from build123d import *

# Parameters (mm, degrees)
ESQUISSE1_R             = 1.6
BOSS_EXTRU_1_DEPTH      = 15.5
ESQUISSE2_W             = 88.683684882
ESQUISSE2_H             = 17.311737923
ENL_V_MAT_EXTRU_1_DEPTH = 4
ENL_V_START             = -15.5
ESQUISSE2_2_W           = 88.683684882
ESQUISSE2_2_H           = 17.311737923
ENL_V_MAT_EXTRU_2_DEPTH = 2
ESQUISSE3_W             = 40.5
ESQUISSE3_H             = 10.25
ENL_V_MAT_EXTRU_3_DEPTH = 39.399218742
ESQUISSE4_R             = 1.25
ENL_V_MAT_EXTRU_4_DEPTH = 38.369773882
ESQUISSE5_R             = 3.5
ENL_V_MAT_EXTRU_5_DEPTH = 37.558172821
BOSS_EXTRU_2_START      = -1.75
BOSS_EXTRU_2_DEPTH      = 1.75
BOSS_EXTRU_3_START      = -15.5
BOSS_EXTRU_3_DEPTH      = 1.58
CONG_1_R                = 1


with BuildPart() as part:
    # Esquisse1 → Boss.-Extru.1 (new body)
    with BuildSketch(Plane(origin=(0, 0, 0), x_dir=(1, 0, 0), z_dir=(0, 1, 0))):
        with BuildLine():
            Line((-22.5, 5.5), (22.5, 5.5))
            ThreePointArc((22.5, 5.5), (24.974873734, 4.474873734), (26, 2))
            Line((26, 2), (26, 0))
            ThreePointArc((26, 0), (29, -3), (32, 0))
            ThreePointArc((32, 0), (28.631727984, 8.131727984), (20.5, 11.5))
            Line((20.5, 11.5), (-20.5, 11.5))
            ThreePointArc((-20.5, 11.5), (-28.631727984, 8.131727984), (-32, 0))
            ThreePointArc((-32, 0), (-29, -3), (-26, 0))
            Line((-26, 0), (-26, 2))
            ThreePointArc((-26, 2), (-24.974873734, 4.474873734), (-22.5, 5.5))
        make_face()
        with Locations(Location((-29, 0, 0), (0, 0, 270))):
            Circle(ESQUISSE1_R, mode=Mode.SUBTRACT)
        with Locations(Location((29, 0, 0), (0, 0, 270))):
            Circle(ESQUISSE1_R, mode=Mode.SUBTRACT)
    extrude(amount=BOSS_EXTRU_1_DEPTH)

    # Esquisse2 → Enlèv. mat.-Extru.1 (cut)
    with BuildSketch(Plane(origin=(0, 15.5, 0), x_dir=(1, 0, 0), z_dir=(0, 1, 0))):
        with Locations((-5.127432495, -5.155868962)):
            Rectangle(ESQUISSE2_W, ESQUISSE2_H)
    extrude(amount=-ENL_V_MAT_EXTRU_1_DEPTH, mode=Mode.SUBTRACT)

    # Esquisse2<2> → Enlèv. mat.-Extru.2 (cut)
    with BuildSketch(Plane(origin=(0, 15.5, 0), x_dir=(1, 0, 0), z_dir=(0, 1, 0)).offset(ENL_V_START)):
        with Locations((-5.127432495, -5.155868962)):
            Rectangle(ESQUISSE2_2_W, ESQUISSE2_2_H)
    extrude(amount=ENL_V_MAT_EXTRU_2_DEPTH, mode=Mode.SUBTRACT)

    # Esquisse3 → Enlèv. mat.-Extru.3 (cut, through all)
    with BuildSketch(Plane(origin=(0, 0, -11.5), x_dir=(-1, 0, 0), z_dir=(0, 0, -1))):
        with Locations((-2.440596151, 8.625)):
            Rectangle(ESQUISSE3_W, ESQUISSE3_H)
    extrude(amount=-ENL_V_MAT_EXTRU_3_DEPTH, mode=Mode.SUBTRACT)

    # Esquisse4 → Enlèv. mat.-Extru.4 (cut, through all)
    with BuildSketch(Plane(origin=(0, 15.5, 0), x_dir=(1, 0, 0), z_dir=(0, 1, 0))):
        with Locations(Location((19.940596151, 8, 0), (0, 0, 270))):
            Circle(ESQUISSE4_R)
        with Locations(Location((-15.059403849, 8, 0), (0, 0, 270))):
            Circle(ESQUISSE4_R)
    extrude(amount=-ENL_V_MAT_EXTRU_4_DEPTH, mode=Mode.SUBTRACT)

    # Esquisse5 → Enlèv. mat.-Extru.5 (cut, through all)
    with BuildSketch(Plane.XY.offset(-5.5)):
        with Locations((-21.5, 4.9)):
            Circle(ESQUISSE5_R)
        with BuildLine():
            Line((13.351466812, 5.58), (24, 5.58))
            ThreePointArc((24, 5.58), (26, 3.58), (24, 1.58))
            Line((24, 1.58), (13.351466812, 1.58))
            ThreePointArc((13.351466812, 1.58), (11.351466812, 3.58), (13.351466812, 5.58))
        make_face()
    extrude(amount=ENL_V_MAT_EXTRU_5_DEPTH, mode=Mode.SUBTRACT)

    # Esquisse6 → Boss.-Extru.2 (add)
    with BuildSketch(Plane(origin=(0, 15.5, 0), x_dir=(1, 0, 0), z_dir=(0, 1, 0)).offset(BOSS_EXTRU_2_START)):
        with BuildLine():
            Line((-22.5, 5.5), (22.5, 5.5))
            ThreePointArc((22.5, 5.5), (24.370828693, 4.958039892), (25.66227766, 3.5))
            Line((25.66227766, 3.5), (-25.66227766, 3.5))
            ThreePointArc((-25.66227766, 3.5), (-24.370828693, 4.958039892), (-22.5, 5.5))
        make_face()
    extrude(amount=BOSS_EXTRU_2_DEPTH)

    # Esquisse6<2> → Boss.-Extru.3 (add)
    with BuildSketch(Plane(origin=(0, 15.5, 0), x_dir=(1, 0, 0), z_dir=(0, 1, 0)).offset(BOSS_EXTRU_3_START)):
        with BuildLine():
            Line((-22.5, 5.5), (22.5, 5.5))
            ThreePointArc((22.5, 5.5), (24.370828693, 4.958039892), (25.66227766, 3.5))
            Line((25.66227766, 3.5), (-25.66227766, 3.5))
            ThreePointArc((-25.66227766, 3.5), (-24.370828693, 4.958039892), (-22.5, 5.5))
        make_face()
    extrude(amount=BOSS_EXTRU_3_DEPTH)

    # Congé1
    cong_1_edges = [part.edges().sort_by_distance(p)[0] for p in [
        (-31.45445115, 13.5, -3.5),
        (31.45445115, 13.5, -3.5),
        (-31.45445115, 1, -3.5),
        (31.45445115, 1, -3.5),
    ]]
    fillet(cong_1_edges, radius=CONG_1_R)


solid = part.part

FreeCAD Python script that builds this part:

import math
import FreeCAD as App
import Part
import Sketcher

V = App.Vector
Q = App.Units.Quantity


def edges_at(feature, points):
    """Names of the edges that pass closest to the given points."""
    edges = feature.Shape.Edges
    near = lambda p: min(range(len(edges)), key=lambda i: edges[i].distToShape(Part.Vertex(*p))[0])
    return sorted({f"Edge{near(p) + 1}" for p in points})

doc = App.newDocument("Part")
body = doc.addObject("PartDesign::Body", "Body")

sketch1 = doc.addObject("Sketcher::SketchObject", "Sketch")
body.addObject(sketch1)
sketch1.AttachmentSupport = (doc.XZ_Plane, [""])
sketch1.MapMode = "FlatFace"
sketch1.addGeometry(Part.LineSegment(V(-22.5, -5.5, 0), V(22.5, -5.5, 0)), False)
sketch1.addGeometry(Part.ArcOfCircle(Part.Circle(V(22.5, -2, 0), V(0, 0, 1), 3.5), math.radians(-90), math.radians(0)), False)
sketch1.addGeometry(Part.LineSegment(V(26, -2, 0), V(26, 0, 0)), False)
sketch1.addGeometry(Part.ArcOfCircle(Part.Circle(V(29, 0, 0), V(0, 0, 1), 3), math.radians(0), math.radians(180)), False)
sketch1.addGeometry(Part.ArcOfCircle(Part.Circle(V(20.5, 0, 0), V(0, 0, 1), 11.5), math.radians(-90), math.radians(0)), False)
sketch1.addGeometry(Part.LineSegment(V(20.5, -11.5, 0), V(-20.5, -11.5, 0)), False)
sketch1.addGeometry(Part.ArcOfCircle(Part.Circle(V(-20.5, 0, 0), V(0, 0, 1), 11.5), math.radians(180), math.radians(270)), False)
sketch1.addGeometry(Part.ArcOfCircle(Part.Circle(V(-29, 0, 0), V(0, 0, 1), 3), math.radians(0), math.radians(180)), False)
sketch1.addGeometry(Part.LineSegment(V(-26, 0, 0), V(-26, -2, 0)), False)
sketch1.addGeometry(Part.ArcOfCircle(Part.Circle(V(-22.5, -2, 0), V(0, 0, 1), 3.5), math.radians(-180), math.radians(-90)), False)
sketch1.addGeometry(Part.Circle(V(-29, 0, 0), V(0, 0, 1), 1.6), False)
sketch1.addGeometry(Part.Circle(V(29, 0, 0), V(0, 0, 1), 1.6), False)
sketch1.addConstraint(Sketcher.Constraint("Tangent", 0, 2, 1, 1))
sketch1.addConstraint(Sketcher.Constraint("Tangent", 1, 2, 2, 1))
sketch1.addConstraint(Sketcher.Constraint("Tangent", 2, 2, 3, 2))
sketch1.addConstraint(Sketcher.Constraint("Tangent", 3, 1, 4, 2))
sketch1.addConstraint(Sketcher.Constraint("Tangent", 4, 1, 5, 1))
sketch1.addConstraint(Sketcher.Constraint("Tangent", 5, 2, 6, 2))
sketch1.addConstraint(Sketcher.Constraint("Tangent", 6, 1, 7, 2))
sketch1.addConstraint(Sketcher.Constraint("Tangent", 7, 1, 8, 1))
sketch1.addConstraint(Sketcher.Constraint("Tangent", 8, 2, 9, 1))
sketch1.addConstraint(Sketcher.Constraint("Tangent", 9, 2, 0, 1))
sketch1.addConstraint(Sketcher.Constraint("Horizontal", 0))
sketch1.addConstraint(Sketcher.Constraint("Vertical", 2))
sketch1.addConstraint(Sketcher.Constraint("Horizontal", 5))
sketch1.addConstraint(Sketcher.Constraint("Vertical", 8))
sketch1.addConstraint(Sketcher.Constraint("Coincident", 10, 3, 7, 3))
sketch1.addConstraint(Sketcher.Constraint("Coincident", 11, 3, 3, 3))
sketch1.addConstraint(Sketcher.Constraint("Equal", 4, 6))
sketch1.addConstraint(Sketcher.Constraint("Equal", 3, 7))
sketch1.addConstraint(Sketcher.Constraint("Equal", 1, 9))
sketch1.addConstraint(Sketcher.Constraint("Equal", 10, 11))
sketch1.addConstraint(Sketcher.Constraint("Symmetric", 4, 3, 6, 3, -1, 1))
sketch1.addConstraint(Sketcher.Constraint("PointOnObject", 3, 3, -1))
sketch1.addConstraint(Sketcher.Constraint("PointOnObject", 7, 3, -1))
sketch1.addConstraint(Sketcher.Constraint("Radius", 3, Q("3 mm")))
sketch1.addConstraint(Sketcher.Constraint("Diameter", 10, Q("3.2 mm")))
sketch1.addConstraint(Sketcher.Constraint("Radius", 1, Q("3.5 mm")))
sketch1.addConstraint(Sketcher.Constraint("Radius", 4, Q("11.5 mm")))
sketch1.addConstraint(Sketcher.Constraint("DistanceX", 0, 1, 0, 2, Q("45 mm")))
sketch1.addConstraint(Sketcher.Constraint("DistanceY", 2, 1, 2, 2, Q("2 mm")))
pad1 = doc.addObject("PartDesign::Pad", "Pad")
body.addObject(pad1)
pad1.Profile = sketch1
pad1.Length = 15.5
pad1.Reversed = True

sketch2 = doc.addObject("Sketcher::SketchObject", "Sketch001")
body.addObject(sketch2)
sketch2.AttachmentSupport = (doc.XZ_Plane, [""])
sketch2.MapMode = "FlatFace"
sketch2.AttachmentOffset = App.Placement(V(0, 0, -15.5), App.Rotation())
sketch2.addGeometry(Part.LineSegment(V(-49, -3, 0), V(-49, 14, 0)), False)
sketch2.addGeometry(Part.LineSegment(V(-49, 14, 0), V(39, 14, 0)), False)
sketch2.addGeometry(Part.LineSegment(V(39, 14, 0), V(39, -3, 0)), False)
sketch2.addGeometry(Part.LineSegment(V(39, -3, 0), V(-49, -3, 0)), False)
sketch2.addConstraint(Sketcher.Constraint("Coincident", 0, 2, 1, 1))
sketch2.addConstraint(Sketcher.Constraint("Coincident", 1, 2, 2, 1))
sketch2.addConstraint(Sketcher.Constraint("Coincident", 2, 2, 3, 1))
sketch2.addConstraint(Sketcher.Constraint("Coincident", 3, 2, 0, 1))
sketch2.addConstraint(Sketcher.Constraint("Vertical", 0))
sketch2.addConstraint(Sketcher.Constraint("Horizontal", 1))
sketch2.addConstraint(Sketcher.Constraint("Vertical", 2))
sketch2.addConstraint(Sketcher.Constraint("Horizontal", 3))
sketch2.addConstraint(Sketcher.Constraint("DistanceY", 2, 2, -1, 1, Q("3.5 mm")))
sketch2.addConstraint(Sketcher.Constraint("DistanceX", 1, 1, 1, 2, Q("88.683685 mm")))
sketch2.addConstraint(Sketcher.Constraint("DistanceY", 0, 1, 0, 2, Q("17.311738 mm")))
sketch2.addConstraint(Sketcher.Constraint("DistanceX", -1, 1, 1, 2, Q("39.21441 mm")))
pocket1 = doc.addObject("PartDesign::Pocket", "Pocket")
body.addObject(pocket1)
pocket1.Profile = sketch2
pocket1.Length = 4
pocket1.Reversed = True

sketch3 = doc.addObject("Sketcher::SketchObject", "Sketch002")
body.addObject(sketch3)
sketch3.AttachmentSupport = (doc.XZ_Plane, [""])
sketch3.MapMode = "FlatFace"
sketch3.addGeometry(Part.LineSegment(V(-49, -3, 0), V(-49, 14, 0)), False)
sketch3.addGeometry(Part.LineSegment(V(-49, 14, 0), V(39, 14, 0)), False)
sketch3.addGeometry(Part.LineSegment(V(39, 14, 0), V(39, -3, 0)), False)
sketch3.addGeometry(Part.LineSegment(V(39, -3, 0), V(-49, -3, 0)), False)
sketch3.addConstraint(Sketcher.Constraint("Coincident", 0, 2, 1, 1))
sketch3.addConstraint(Sketcher.Constraint("Coincident", 1, 2, 2, 1))
sketch3.addConstraint(Sketcher.Constraint("Coincident", 2, 2, 3, 1))
sketch3.addConstraint(Sketcher.Constraint("Coincident", 3, 2, 0, 1))
sketch3.addConstraint(Sketcher.Constraint("Vertical", 0))
sketch3.addConstraint(Sketcher.Constraint("Horizontal", 1))
sketch3.addConstraint(Sketcher.Constraint("Vertical", 2))
sketch3.addConstraint(Sketcher.Constraint("Horizontal", 3))
sketch3.addConstraint(Sketcher.Constraint("DistanceY", 2, 2, -1, 1, Q("3.5 mm")))
sketch3.addConstraint(Sketcher.Constraint("DistanceX", 1, 1, 1, 2, Q("88.683685 mm")))
sketch3.addConstraint(Sketcher.Constraint("DistanceY", 0, 1, 0, 2, Q("17.311738 mm")))
sketch3.addConstraint(Sketcher.Constraint("DistanceX", -1, 1, 1, 2, Q("39.21441 mm")))
pocket2 = doc.addObject("PartDesign::Pocket", "Pocket001")
body.addObject(pocket2)
pocket2.Profile = sketch3
pocket2.Length = 2

sketch4 = doc.addObject("Sketcher::SketchObject", "Sketch003")
body.addObject(sketch4)
sketch4.AttachmentSupport = (doc.XY_Plane, [""])
sketch4.MapMode = "FlatFace"
sketch4.AttachmentOffset = App.Placement(V(0, 0, -11.5), App.Rotation())
sketch4.addGeometry(Part.LineSegment(V(23, 14, 0), V(23, 4, 0)), False)
sketch4.addGeometry(Part.LineSegment(V(23, 4, 0), V(-18, 4, 0)), False)
sketch4.addGeometry(Part.LineSegment(V(-18, 4, 0), V(-18, 14, 0)), False)
sketch4.addGeometry(Part.LineSegment(V(-18, 14, 0), V(23, 14, 0)), False)
sketch4.addConstraint(Sketcher.Constraint("Coincident", 0, 2, 1, 1))
sketch4.addConstraint(Sketcher.Constraint("Coincident", 1, 2, 2, 1))
sketch4.addConstraint(Sketcher.Constraint("Coincident", 2, 2, 3, 1))
sketch4.addConstraint(Sketcher.Constraint("Coincident", 3, 2, 0, 1))
sketch4.addConstraint(Sketcher.Constraint("Vertical", 0))
sketch4.addConstraint(Sketcher.Constraint("Horizontal", 1))
sketch4.addConstraint(Sketcher.Constraint("Vertical", 2))
sketch4.addConstraint(Sketcher.Constraint("Horizontal", 3))
sketch4.addConstraint(Sketcher.Constraint("DistanceX", 1, 2, 1, 1, Q("40.5 mm")))
sketch4.addConstraint(Sketcher.Constraint("DistanceY", 0, 2, 0, 1, Q("10.25 mm")))
sketch4.addConstraint(Sketcher.Constraint("DistanceY", -1, 1, 0, 2, Q("3.5 mm")))
sketch4.addConstraint(Sketcher.Constraint("DistanceX", -1, 1, 0, 2, Q("22.690596 mm")))
pocket3 = doc.addObject("PartDesign::Pocket", "Pocket002")
body.addObject(pocket3)
pocket3.Profile = sketch4
pocket3.Type = "ThroughAll"
pocket3.Reversed = True

sketch5 = doc.addObject("Sketcher::SketchObject", "Sketch004")
body.addObject(sketch5)
sketch5.AttachmentSupport = (doc.XZ_Plane, [""])
sketch5.MapMode = "FlatFace"
sketch5.AttachmentOffset = App.Placement(V(0, 0, -15.5), App.Rotation())
sketch5.addGeometry(Part.Circle(V(19.9, -8, 0), V(0, 0, 1), 1.2), False)
sketch5.addGeometry(Part.Circle(V(-15.1, -8, 0), V(0, 0, 1), 1.2), False)
sketch5.addConstraint(Sketcher.Constraint("Equal", 0, 1))
sketch5.addConstraint(Sketcher.Constraint("Horizontal", 0, 3, 1, 3))
sketch5.addConstraint(Sketcher.Constraint("Diameter", 0, Q("2.5 mm")))
sketch5.addConstraint(Sketcher.Constraint("DistanceY", 0, 3, -1, 1, Q("8 mm")))
sketch5.addConstraint(Sketcher.Constraint("DistanceX", 1, 3, 0, 3, Q("35 mm")))
sketch5.addConstraint(Sketcher.Constraint("DistanceX", -1, 1, 0, 3, Q("19.940596 mm")))
pocket4 = doc.addObject("PartDesign::Pocket", "Pocket003")
body.addObject(pocket4)
pocket4.Profile = sketch5
pocket4.Type = "ThroughAll"
pocket4.Reversed = True

sketch6 = doc.addObject("Sketcher::SketchObject", "Sketch005")
body.addObject(sketch6)
sketch6.AttachmentSupport = (doc.XY_Plane, [""])
sketch6.MapMode = "FlatFace"
sketch6.AttachmentOffset = App.Placement(V(0, 0, -5.5), App.Rotation())
sketch6.addGeometry(Part.Circle(V(-21.5, 4.9, 0), V(0, 0, 1), 3.5), False)
sketch6.addGeometry(Part.LineSegment(V(24, 5.6, 0), V(13.4, 5.6, 0)), False)
sketch6.addGeometry(Part.ArcOfCircle(Part.Circle(V(13.4, 3.6, 0), V(0, 0, 1), 2), math.radians(90), math.radians(270)), False)
sketch6.addGeometry(Part.LineSegment(V(13.4, 1.6, 0), V(24, 1.6, 0)), False)
sketch6.addGeometry(Part.ArcOfCircle(Part.Circle(V(24, 3.6, 0), V(0, 0, 1), 2), math.radians(-90), math.radians(90)), False)
sketch6.addConstraint(Sketcher.Constraint("Tangent", 1, 2, 2, 1))
sketch6.addConstraint(Sketcher.Constraint("Tangent", 2, 2, 3, 1))
sketch6.addConstraint(Sketcher.Constraint("Tangent", 3, 2, 4, 1))
sketch6.addConstraint(Sketcher.Constraint("Tangent", 4, 2, 1, 1))
sketch6.addConstraint(Sketcher.Constraint("Horizontal", 1))
sketch6.addConstraint(Sketcher.Constraint("Horizontal", 3))
sketch6.addConstraint(Sketcher.Constraint("Diameter", 0, Q("7 mm")))
sketch6.addConstraint(Sketcher.Constraint("Radius", 2, Q("2 mm")))
sketch6.addConstraint(Sketcher.Constraint("DistanceX", -1, 1, 4, 3, Q("24 mm")))
sketch6.addConstraint(Sketcher.Constraint("DistanceX", 0, 3, -1, 1, Q("21.5 mm")))
sketch6.addConstraint(Sketcher.Constraint("DistanceY", -1, 1, 0, 3, Q("4.9 mm")))
sketch6.addConstraint(Sketcher.Constraint("DistanceY", -1, 1, 2, 3, Q("3.58 mm")))
sketch6.addConstraint(Sketcher.Constraint("DistanceX", 1, 2, 1, 1, Q("10.648533 mm")))
pocket5 = doc.addObject("PartDesign::Pocket", "Pocket004")
body.addObject(pocket5)
pocket5.Profile = sketch6
pocket5.Type = "ThroughAll"
pocket5.Reversed = True

sketch7 = doc.addObject("Sketcher::SketchObject", "Sketch006")
body.addObject(sketch7)
sketch7.AttachmentSupport = (doc.XZ_Plane, [""])
sketch7.MapMode = "FlatFace"
sketch7.AttachmentOffset = App.Placement(V(0, 0, -13.75), App.Rotation())
sketch7.addGeometry(Part.LineSegment(V(22.5, -5.5, 0), V(-22.5, -5.5, 0)), False)
sketch7.addGeometry(Part.ArcOfCircle(Part.Circle(V(-22.5, -2, 0), V(0, 0, 1), 3.5), math.radians(-155), math.radians(-90)), False)
sketch7.addGeometry(Part.LineSegment(V(-25.7, -3.5, 0), V(25.7, -3.5, 0)), False)
sketch7.addGeometry(Part.ArcOfCircle(Part.Circle(V(22.5, -2, 0), V(0, 0, 1), 3.5), math.radians(-90), math.radians(-25)), False)
sketch7.addConstraint(Sketcher.Constraint("Tangent", 0, 2, 1, 2))
sketch7.addConstraint(Sketcher.Constraint("Coincident", 1, 1, 2, 1))
sketch7.addConstraint(Sketcher.Constraint("Coincident", 2, 2, 3, 2))
sketch7.addConstraint(Sketcher.Constraint("Tangent", 3, 1, 0, 1))
sketch7.addConstraint(Sketcher.Constraint("Horizontal", 0))
sketch7.addConstraint(Sketcher.Constraint("Horizontal", 2))
sketch7.addConstraint(Sketcher.Constraint("Equal", 1, 3))
sketch7.addConstraint(Sketcher.Constraint("Radius", 1, Q("3.5 mm")))
sketch7.addConstraint(Sketcher.Constraint("DistanceX", 0, 2, 0, 1, Q("45 mm")))
sketch7.addConstraint(Sketcher.Constraint("DistanceY", 1, 3, -1, 1, Q("2 mm")))
sketch7.addConstraint(Sketcher.Constraint("DistanceY", 0, 2, 1, 1, Q("2 mm")))
sketch7.addConstraint(Sketcher.Constraint("DistanceX", 1, 3, -1, 1, Q("22.5 mm")))
pad2 = doc.addObject("PartDesign::Pad", "Pad001")
body.addObject(pad2)
pad2.Profile = sketch7
pad2.Length = 1.75
pad2.Reversed = True

sketch8 = doc.addObject("Sketcher::SketchObject", "Sketch007")
body.addObject(sketch8)
sketch8.AttachmentSupport = (doc.XZ_Plane, [""])
sketch8.MapMode = "FlatFace"
sketch8.addGeometry(Part.LineSegment(V(22.5, -5.5, 0), V(-22.5, -5.5, 0)), False)
sketch8.addGeometry(Part.ArcOfCircle(Part.Circle(V(-22.5, -2, 0), V(0, 0, 1), 3.5), math.radians(-155), math.radians(-90)), False)
sketch8.addGeometry(Part.LineSegment(V(-25.7, -3.5, 0), V(25.7, -3.5, 0)), False)
sketch8.addGeometry(Part.ArcOfCircle(Part.Circle(V(22.5, -2, 0), V(0, 0, 1), 3.5), math.radians(-90), math.radians(-25)), False)
sketch8.addConstraint(Sketcher.Constraint("Tangent", 0, 2, 1, 2))
sketch8.addConstraint(Sketcher.Constraint("Coincident", 1, 1, 2, 1))
sketch8.addConstraint(Sketcher.Constraint("Coincident", 2, 2, 3, 2))
sketch8.addConstraint(Sketcher.Constraint("Tangent", 3, 1, 0, 1))
sketch8.addConstraint(Sketcher.Constraint("Horizontal", 0))
sketch8.addConstraint(Sketcher.Constraint("Horizontal", 2))
sketch8.addConstraint(Sketcher.Constraint("Equal", 1, 3))
sketch8.addConstraint(Sketcher.Constraint("Radius", 1, Q("3.5 mm")))
sketch8.addConstraint(Sketcher.Constraint("DistanceX", 0, 2, 0, 1, Q("45 mm")))
sketch8.addConstraint(Sketcher.Constraint("DistanceY", 1, 3, -1, 1, Q("2 mm")))
sketch8.addConstraint(Sketcher.Constraint("DistanceY", 0, 2, 1, 1, Q("2 mm")))
sketch8.addConstraint(Sketcher.Constraint("DistanceX", 1, 3, -1, 1, Q("22.5 mm")))
pad3 = doc.addObject("PartDesign::Pad", "Pad002")
body.addObject(pad3)
pad3.Profile = sketch8
pad3.Length = 1.58
pad3.Reversed = True
doc.recompute()

fillet = doc.addObject("PartDesign::Fillet", "Fillet")
body.addObject(fillet)
fillet.Base = (pad3, edges_at(pad3, [
    (-31.454, 13.5, -3.5),
    (31.454, 13.5, -3.5),
    (-31.454, 1, -3.5),
    (31.454, 1, -3.5),
]))
fillet.Radius = 1

doc.recompute()
